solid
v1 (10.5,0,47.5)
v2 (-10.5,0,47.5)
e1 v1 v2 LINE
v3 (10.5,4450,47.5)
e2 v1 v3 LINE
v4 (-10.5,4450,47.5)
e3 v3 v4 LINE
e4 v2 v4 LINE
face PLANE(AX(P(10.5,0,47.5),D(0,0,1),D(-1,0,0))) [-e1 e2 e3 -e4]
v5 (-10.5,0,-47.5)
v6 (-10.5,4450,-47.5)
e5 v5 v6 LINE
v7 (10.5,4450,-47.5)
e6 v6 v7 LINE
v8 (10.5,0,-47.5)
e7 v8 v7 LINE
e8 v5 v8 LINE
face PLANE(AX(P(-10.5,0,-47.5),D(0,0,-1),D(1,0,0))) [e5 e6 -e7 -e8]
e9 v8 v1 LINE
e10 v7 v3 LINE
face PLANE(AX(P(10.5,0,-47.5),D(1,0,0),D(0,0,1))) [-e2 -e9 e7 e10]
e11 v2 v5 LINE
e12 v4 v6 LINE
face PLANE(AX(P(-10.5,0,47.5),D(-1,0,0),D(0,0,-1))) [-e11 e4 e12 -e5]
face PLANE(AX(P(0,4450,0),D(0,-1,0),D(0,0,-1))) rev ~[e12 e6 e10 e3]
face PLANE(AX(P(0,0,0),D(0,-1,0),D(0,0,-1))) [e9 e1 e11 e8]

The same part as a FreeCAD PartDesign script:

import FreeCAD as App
import Part
import Sketcher

V = App.Vector

doc = App.newDocument("Part")
body = doc.addObject("PartDesign::Body", "Body")

# Sketch on XZ plane
sketch1 = doc.addObject("Sketcher::SketchObject", "Sketch")
body.addObject(sketch1)
sketch1.AttachmentSupport = (doc.XZ_Plane, [""])
sketch1.MapMode = "FlatFace"
sketch1.addGeometry(Part.LineSegment(V(-10, 48, 0), V(-10, -48, 0)), False)
sketch1.addGeometry(Part.LineSegment(V(-10, -48, 0), V(10, -48, 0)), False)
sketch1.addGeometry(Part.LineSegment(V(10, -48, 0), V(10, 48, 0)), False)
sketch1.addGeometry(Part.LineSegment(V(10, 48, 0), V(-10, 48, 0)), False)
sketch1.addConstraint(Sketcher.Constraint("Coincident", 0, 2, 1, 1))
sketch1.addConstraint(Sketcher.Constraint("Coincident", 1, 2, 2, 1))
sketch1.addConstraint(Sketcher.Constraint("Coincident", 2, 2, 3, 1))
sketch1.addConstraint(Sketcher.Constraint("Coincident", 3, 2, 0, 1))
sketch1.addConstraint(Sketcher.Constraint("Vertical", 0))
sketch1.addConstraint(Sketcher.Constraint("Horizontal", 1))
sketch1.addConstraint(Sketcher.Constraint("Vertical", 2))
sketch1.addConstraint(Sketcher.Constraint("Horizontal", 3))
sketch1.addConstraint(Sketcher.Constraint("Symmetric", 0, 2, 2, 2, -1, 1))
sketch1.addConstraint(Sketcher.Constraint("DistanceX", 1, 1, 1, 2, 21.0))
sketch1.addConstraint(Sketcher.Constraint("DistanceY", 0, 2, 0, 1, 95.0))
pad1 = doc.addObject("PartDesign::Pad", "Pad")
body.addObject(pad1)
pad1.Profile = sketch1
pad1.Length = 4450
pad1.Reversed = True

doc.recompute()
